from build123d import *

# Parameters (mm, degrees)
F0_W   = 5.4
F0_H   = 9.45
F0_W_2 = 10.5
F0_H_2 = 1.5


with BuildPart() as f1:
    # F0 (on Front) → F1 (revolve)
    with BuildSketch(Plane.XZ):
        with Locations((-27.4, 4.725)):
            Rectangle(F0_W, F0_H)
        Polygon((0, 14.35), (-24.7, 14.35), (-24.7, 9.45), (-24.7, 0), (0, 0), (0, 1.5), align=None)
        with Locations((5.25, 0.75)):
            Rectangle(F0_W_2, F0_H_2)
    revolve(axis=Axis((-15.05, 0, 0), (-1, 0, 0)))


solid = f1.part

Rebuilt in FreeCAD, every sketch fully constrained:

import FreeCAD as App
import Part
import Sketcher
from FreeCAD import Vector

doc = App.newDocument("Part")
params = doc.addObject("Spreadsheet::Sheet", "Params")
for row, (alias, value) in enumerate([
    ("sketch1_width", "40.6 mm"),
    ("sketch1_width2", "10.5 mm"),
    ("sketch1_width3", "24.7 mm"),
    ("sketch1_height", "1.5 mm"),
    ("sketch1_height2", "4.9 mm"),
    ("revolution_angle", "360 deg"),
], start=1):
    params.set(f"A{row}", alias)
    params.set(f"B{row}", "=" + value)
    params.setAlias(f"B{row}", alias)

body = doc.addObject("PartDesign::Body", "Body")

# Sketch on XZ plane
sketch1 = body.newObject("Sketcher::SketchObject", "Sketch")
sketch1.AttachmentSupport = (doc.getObject("XZ_Plane"), [""])
sketch1.MapMode = "FlatFace"
sketch1.addGeometry(Part.LineSegment(Vector(-30.1, 9.45, 0), Vector(-30.1, 0, 0)), False)
sketch1.addGeometry(Part.LineSegment(Vector(-30.1, 0, 0), Vector(10.5, 0, 0)), False)
sketch1.addGeometry(Part.LineSegment(Vector(10.5, 0, 0), Vector(10.5, 1.5, 0)), False)
sketch1.addGeometry(Part.LineSegment(Vector(10.5, 1.5, 0), Vector(0, 1.5, 0)), False)
sketch1.addGeometry(Part.LineSegment(Vector(0, 1.5, 0), Vector(0, 14.35, 0)), False)
sketch1.addGeometry(Part.LineSegment(Vector(0, 14.35, 0), Vector(-24.7, 14.35, 0)), False)
sketch1.addGeometry(Part.LineSegment(Vector(-24.7, 14.35, 0), Vector(-24.7, 9.45, 0)), False)
sketch1.addGeometry(Part.LineSegment(Vector(-24.7, 9.45, 0), Vector(-30.1, 9.45, 0)), False)
sketch1.addConstraint(Sketcher.Constraint("Coincident", 0, 2, 1, 1))
sketch1.addConstraint(Sketcher.Constraint("Coincident", 1, 2, 2, 1))
sketch1.addConstraint(Sketcher.Constraint("Coincident", 2, 2, 3, 1))
sketch1.addConstraint(Sketcher.Constraint("Coincident", 3, 2, 4, 1))
sketch1.addConstraint(Sketcher.Constraint("Coincident", 4, 2, 5, 1))
sketch1.addConstraint(Sketcher.Constraint("Coincident", 5, 2, 6, 1))
sketch1.addConstraint(Sketcher.Constraint("Coincident", 6, 2, 7, 1))
sketch1.addConstraint(Sketcher.Constraint("Coincident", 7, 2, 0, 1))
sketch1.addConstraint(Sketcher.Constraint("Vertical", 0))
sketch1.addConstraint(Sketcher.Constraint("Horizontal", 1))
sketch1.addConstraint(Sketcher.Constraint("Vertical", 2))
sketch1.addConstraint(Sketcher.Constraint("Horizontal", 3))
sketch1.addConstraint(Sketcher.Constraint("Vertical", 4))
sketch1.addConstraint(Sketcher.Constraint("Horizontal", 5))
sketch1.addConstraint(Sketcher.Constraint("Vertical", 6))
sketch1.addConstraint(Sketcher.Constraint("Horizontal", 7))
sketch1.addConstraint(Sketcher.Constraint("PointOnObject", 0, 2, -1))
sketch1.addConstraint(Sketcher.Constraint("PointOnObject", 3, 2, -2))
sketch1.addConstraint(Sketcher.Constraint("DistanceX", 1, 1, 1, 2, 40.6))
sketch1.addConstraint(Sketcher.Constraint("DistanceX", 3, 2, 3, 1, 10.5))
sketch1.addConstraint(Sketcher.Constraint("DistanceX", 5, 2, 5, 1, 24.7))
sketch1.addConstraint(Sketcher.Constraint("DistanceY", 2, 1, 2, 2, 1.5))
sketch1.addConstraint(Sketcher.Constraint("DistanceY", 6, 2, 6, 1, 4.9))
sketch1.addConstraint(Sketcher.Constraint("DistanceY", 0, 2, 0, 1, 9.45))
sketch1.setExpression("Constraints[18]", "Params.sketch1_width")
sketch1.setExpression("Constraints[19]", "Params.sketch1_width2")
sketch1.setExpression("Constraints[20]", "Params.sketch1_width3")
sketch1.setExpression("Constraints[21]", "Params.sketch1_height")
sketch1.setExpression("Constraints[22]", "Params.sketch1_height2")
revolution = body.newObject("PartDesign::Revolution", "Revolution")
revolution.Profile = sketch1
revolution.ReferenceAxis = (sketch1, ["H_Axis"])
revolution.setExpression("Angle", "Params.revolution_angle")

doc.recompute()
